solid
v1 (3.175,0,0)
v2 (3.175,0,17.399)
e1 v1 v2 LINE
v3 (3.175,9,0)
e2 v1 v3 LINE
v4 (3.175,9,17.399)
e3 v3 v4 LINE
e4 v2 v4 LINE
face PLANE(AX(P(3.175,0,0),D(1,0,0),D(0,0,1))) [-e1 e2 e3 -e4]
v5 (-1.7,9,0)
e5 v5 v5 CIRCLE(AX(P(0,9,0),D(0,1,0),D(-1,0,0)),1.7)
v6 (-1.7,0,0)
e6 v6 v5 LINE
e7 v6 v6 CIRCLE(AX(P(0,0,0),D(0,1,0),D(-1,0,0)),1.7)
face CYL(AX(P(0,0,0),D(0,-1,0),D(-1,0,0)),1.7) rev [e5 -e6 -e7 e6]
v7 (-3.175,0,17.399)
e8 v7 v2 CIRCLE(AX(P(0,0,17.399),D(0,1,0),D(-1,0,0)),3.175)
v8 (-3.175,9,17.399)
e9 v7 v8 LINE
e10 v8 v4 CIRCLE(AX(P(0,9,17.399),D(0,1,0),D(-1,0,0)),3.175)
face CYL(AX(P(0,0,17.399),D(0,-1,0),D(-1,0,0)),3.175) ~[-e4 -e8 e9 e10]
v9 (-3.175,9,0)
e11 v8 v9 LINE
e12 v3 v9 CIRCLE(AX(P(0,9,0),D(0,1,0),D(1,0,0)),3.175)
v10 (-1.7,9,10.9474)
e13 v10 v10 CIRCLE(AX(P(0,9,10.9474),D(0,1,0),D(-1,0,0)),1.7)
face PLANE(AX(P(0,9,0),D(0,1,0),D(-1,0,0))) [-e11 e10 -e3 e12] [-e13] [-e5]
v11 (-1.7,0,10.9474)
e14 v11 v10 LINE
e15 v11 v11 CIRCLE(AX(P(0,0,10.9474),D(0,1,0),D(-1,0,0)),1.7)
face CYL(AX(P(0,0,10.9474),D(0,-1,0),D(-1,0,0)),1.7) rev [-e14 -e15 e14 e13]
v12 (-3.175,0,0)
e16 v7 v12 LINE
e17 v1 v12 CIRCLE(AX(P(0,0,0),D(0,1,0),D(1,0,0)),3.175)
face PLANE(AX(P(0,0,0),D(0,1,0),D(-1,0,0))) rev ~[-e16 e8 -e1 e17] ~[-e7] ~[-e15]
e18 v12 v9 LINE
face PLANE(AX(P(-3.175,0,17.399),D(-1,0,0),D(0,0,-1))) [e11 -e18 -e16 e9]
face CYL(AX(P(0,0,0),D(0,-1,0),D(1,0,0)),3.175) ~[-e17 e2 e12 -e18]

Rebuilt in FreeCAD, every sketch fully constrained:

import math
import FreeCAD as App
import Part
import Sketcher
from FreeCAD import Vector
Q = App.Units.Quantity

doc = App.newDocument("Part")
body = doc.addObject("PartDesign::Body", "Body")

sketch1 = doc.addObject("Sketcher::SketchObject", "Sketch")
body.addObject(sketch1)
sketch1.AttachmentSupport = (doc.XZ_Plane, [""])
sketch1.MapMode = "FlatFace"
sketch1.addGeometry([
    Part.LineSegment(Vector(3.2, 17.4, 0), Vector(3.2, 0, 0)),
    Part.ArcOfCircle(Part.Circle(Vector(0, 0, 0), Vector(0, 0, 1), 3.2), math.radians(180), math.radians(360)),
    Part.LineSegment(Vector(-3.2, 0, 0), Vector(-3.2, 17.4, 0)),
    Part.ArcOfCircle(Part.Circle(Vector(0, 17.4, 0), Vector(0, 0, 1), 3.2), math.radians(0), math.radians(180)),
    Part.Circle(Vector(0, 0, 0), Vector(0, 0, 1), 1.7),
    Part.Circle(Vector(0, 10.9, 0), Vector(0, 0, 1), 1.7),
], False)
sketch1.addConstraint([
    Sketcher.Constraint("Tangent", 0, 2, 1, 2),
    Sketcher.Constraint("Tangent", 1, 1, 2, 1),
    Sketcher.Constraint("Tangent", 2, 2, 3, 2),
    Sketcher.Constraint("Tangent", 3, 1, 0, 1),
    Sketcher.Constraint("Vertical", 0),
    Sketcher.Constraint("Vertical", 2),
    Sketcher.Constraint("Coincident", 1, 3, -1, 1),
    Sketcher.Constraint("Coincident", 4, 3, -1, 1),
    Sketcher.Constraint("Equal", 4, 5),
    Sketcher.Constraint("PointOnObject", 5, 3, -2),
    Sketcher.Constraint("Diameter", 4, Q("3.4 mm")),
    Sketcher.Constraint("Radius", 1, Q("3.175 mm")),
    Sketcher.Constraint("DistanceY", 0, 2, 0, 1, Q("17.399 mm")),
    Sketcher.Constraint("DistanceY", -1, 1, 5, 3, Q("10.9474 mm")),
])
pad1 = doc.addObject("PartDesign::Pad", "Pad")
body.addObject(pad1)
pad1.Profile = sketch1
pad1.Length = 9
pad1.Reversed = True

doc.recompute()
